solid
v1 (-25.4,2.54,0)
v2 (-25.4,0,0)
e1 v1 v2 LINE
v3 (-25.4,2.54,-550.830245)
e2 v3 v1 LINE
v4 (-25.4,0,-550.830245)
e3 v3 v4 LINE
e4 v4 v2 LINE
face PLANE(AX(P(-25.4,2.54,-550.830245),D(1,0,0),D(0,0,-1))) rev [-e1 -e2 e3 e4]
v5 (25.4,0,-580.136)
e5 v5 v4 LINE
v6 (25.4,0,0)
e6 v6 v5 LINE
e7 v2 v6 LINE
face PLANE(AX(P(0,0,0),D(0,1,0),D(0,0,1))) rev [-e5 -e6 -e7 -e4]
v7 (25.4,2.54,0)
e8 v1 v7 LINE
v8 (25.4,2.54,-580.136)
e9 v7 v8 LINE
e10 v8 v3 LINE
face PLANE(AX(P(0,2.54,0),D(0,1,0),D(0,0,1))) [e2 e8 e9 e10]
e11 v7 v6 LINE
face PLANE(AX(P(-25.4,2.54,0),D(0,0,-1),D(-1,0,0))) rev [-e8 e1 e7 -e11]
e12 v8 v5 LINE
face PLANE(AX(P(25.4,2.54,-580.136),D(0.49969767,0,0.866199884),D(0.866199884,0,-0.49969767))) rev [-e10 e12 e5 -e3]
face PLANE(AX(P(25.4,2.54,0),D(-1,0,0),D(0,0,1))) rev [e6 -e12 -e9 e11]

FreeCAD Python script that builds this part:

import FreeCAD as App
import Part
import Sketcher

V = App.Vector
Q = App.Units.Quantity


def add_polygon(sketch, points):
    """Adds a closed chain of lines whose ends are joined by coincident constraints."""
    first, n = sketch.GeometryCount, len(points)
    for a, b in zip(points, points[1:] + points[:1]):
        sketch.addGeometry(Part.LineSegment(App.Vector(*a, 0), App.Vector(*b, 0)), False)
    for i in range(n):
        sketch.addConstraint(Sketcher.Constraint("Coincident", first + i, 2, first + (i + 1) % n, 1))

doc = App.newDocument("Part")
body = doc.addObject("PartDesign::Body", "Body")

# Sketch on XZ plane
sketch1 = doc.addObject("Sketcher::SketchObject", "Sketch")
body.addObject(sketch1)
sketch1.AttachmentSupport = (doc.XZ_Plane, [""])
sketch1.MapMode = "FlatFace"
add_polygon(sketch1, [(-25, 0), (25, 0), (25, -580), (-25, -551)])  # lines 0-3
sketch1.addConstraint([
    Sketcher.Constraint("Horizontal", 0),
    Sketcher.Constraint("Vertical", 1),
    Sketcher.Constraint("Vertical", 3),
    Sketcher.Constraint("Symmetric", 0, 2, 3, 2, -1, 1),
    Sketcher.Constraint("DistanceX", 0, 1, 0, 2, Q("2 in")),
    Sketcher.Constraint("DistanceY", 1, 2, 1, 1, Q("22.84 in")),
    Sketcher.Constraint("Angle", 2, Q("150.02 deg")),
])
pad1 = doc.addObject("PartDesign::Pad", "Pad")
body.addObject(pad1)
pad1.Profile = sketch1
pad1.Length = Q("0.1 in")
pad1.Reversed = True

doc.recompute()
